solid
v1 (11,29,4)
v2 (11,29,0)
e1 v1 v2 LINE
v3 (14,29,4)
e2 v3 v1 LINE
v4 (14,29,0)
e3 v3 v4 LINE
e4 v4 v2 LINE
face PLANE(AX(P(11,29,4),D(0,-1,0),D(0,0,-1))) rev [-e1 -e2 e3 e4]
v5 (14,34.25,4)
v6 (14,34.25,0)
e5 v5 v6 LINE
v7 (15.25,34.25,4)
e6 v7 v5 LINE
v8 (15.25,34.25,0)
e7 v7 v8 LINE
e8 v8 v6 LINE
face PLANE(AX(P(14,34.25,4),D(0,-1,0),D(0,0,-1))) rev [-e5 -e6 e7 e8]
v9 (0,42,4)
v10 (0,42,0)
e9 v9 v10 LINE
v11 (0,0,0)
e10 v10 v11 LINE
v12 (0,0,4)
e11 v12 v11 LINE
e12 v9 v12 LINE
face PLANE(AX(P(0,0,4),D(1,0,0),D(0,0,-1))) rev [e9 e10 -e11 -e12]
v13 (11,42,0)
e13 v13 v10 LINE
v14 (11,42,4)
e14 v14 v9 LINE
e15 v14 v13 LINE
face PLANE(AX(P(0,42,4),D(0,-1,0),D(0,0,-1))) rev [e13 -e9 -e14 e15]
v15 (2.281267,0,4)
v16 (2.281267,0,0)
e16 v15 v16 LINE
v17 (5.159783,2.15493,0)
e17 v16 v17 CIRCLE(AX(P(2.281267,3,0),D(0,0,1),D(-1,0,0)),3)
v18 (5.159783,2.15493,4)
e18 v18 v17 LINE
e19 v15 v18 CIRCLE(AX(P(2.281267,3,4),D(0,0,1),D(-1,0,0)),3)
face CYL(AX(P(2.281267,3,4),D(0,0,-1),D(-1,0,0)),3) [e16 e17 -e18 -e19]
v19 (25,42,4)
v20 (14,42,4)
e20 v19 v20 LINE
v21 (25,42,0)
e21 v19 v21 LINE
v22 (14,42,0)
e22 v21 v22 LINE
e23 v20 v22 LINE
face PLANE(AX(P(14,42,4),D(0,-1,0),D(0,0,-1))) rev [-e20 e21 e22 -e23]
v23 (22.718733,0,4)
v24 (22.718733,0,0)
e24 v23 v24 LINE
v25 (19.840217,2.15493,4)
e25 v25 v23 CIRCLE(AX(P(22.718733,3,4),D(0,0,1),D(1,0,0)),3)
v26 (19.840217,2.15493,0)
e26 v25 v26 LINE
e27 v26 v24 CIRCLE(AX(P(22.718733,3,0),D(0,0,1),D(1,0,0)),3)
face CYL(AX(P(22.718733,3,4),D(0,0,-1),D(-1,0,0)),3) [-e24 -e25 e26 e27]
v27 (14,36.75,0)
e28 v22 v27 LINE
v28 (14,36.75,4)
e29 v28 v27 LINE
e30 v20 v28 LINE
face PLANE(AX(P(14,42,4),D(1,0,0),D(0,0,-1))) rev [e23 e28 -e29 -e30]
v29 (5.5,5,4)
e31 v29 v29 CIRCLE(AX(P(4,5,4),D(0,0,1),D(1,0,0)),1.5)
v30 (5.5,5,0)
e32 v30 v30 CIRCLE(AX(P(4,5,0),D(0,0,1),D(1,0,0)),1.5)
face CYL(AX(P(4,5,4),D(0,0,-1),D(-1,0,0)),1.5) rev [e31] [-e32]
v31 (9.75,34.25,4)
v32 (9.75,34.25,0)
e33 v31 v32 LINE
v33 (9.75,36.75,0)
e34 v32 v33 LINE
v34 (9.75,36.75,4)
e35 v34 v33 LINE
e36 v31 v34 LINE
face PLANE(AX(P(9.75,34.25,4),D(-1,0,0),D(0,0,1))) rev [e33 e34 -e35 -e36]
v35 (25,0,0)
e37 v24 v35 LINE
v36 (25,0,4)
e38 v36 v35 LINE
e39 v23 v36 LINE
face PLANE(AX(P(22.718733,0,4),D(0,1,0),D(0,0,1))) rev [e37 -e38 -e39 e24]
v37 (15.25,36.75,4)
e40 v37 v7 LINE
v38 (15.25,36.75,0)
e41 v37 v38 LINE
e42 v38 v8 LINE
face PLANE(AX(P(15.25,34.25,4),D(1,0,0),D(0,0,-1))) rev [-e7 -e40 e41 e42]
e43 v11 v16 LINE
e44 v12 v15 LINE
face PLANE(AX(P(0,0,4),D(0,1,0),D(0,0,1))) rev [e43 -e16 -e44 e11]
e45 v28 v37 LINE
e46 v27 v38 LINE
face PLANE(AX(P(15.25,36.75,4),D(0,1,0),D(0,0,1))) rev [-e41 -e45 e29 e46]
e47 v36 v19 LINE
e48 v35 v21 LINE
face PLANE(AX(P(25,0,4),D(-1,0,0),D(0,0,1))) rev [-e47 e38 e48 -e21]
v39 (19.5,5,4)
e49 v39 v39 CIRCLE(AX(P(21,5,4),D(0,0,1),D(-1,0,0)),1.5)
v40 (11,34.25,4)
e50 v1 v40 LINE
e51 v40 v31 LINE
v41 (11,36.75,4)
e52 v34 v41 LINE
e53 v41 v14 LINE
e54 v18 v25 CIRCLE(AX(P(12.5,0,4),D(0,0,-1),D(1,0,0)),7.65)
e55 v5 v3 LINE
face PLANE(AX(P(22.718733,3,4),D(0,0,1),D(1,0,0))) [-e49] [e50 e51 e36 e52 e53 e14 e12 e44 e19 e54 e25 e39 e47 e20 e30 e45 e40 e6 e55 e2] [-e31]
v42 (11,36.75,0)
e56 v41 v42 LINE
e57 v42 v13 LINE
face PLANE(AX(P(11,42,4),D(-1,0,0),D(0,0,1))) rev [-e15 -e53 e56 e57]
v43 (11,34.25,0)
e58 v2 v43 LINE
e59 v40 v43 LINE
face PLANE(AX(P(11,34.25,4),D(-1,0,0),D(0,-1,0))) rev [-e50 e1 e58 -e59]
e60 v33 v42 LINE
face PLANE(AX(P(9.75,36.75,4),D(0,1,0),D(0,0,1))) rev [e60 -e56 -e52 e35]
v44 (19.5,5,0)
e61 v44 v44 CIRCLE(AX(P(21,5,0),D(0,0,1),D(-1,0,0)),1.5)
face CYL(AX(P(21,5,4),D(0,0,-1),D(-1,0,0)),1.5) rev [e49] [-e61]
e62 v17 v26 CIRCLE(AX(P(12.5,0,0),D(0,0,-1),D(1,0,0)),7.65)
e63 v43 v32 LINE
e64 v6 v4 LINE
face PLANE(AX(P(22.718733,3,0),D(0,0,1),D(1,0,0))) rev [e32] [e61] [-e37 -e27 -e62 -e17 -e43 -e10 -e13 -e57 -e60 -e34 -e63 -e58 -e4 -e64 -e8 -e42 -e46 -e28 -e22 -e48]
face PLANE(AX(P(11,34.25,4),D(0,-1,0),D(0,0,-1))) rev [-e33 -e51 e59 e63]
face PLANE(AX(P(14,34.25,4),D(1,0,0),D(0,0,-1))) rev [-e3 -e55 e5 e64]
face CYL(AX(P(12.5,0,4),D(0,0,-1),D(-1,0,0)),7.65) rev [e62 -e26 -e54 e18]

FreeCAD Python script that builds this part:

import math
import FreeCAD as App
import Part
import Sketcher

V = App.Vector
Q = App.Units.Quantity

doc = App.newDocument("Part")
params = doc.addObject("Spreadsheet::Sheet", "Params")
for row, (alias, value) in enumerate([
    ("sketch1_diameter", "3 mm"),
    ("sketch1_radius", "3 mm"),
    ("sketch1_width", "11 mm"),
    ("sketch1_width2", "3 mm"),
    ("sketch1_height", "42 mm"),
    ("pad1_length", "4 mm"),
], start=1):
    params.set(f"A{row}", alias)
    params.set(f"B{row}", "=" + value)
    params.setAlias(f"B{row}", alias)

body = doc.addObject("PartDesign::Body", "Body")

sketch1 = doc.addObject("Sketcher::SketchObject", "Sketch")
body.addObject(sketch1)
sketch1.AttachmentSupport = (doc.XY_Plane, [""])
sketch1.MapMode = "FlatFace"
sketch1.addGeometry([
    Part.LineSegment(V(11, 36.75, 0), V(11, 42, 0)),
    Part.LineSegment(V(11, 42, 0), V(0, 42, 0)),
    Part.LineSegment(V(0, 42, 0), V(0, 0, 0)),
    Part.LineSegment(V(0, 0, 0), V(2.281267, 0, 0)),
    Part.ArcOfCircle(Part.Circle(V(2.281267, 3, 0), V(0, 0, 1), 3), math.radians(-90), math.radians(-16.361104)),
    Part.ArcOfCircle(Part.Circle(V(12.5, 0, 0), V(0, 0, 1), 7.65), math.radians(16.361104), math.radians(163.638896)),
    Part.ArcOfCircle(Part.Circle(V(22.718733, 3, 0), V(0, 0, 1), 3), math.radians(-163.638896), math.radians(-90)),
    Part.LineSegment(V(22.718733, 0, 0), V(25, 0, 0)),
    Part.LineSegment(V(25, 0, 0), V(25, 42, 0)),
    Part.LineSegment(V(25, 42, 0), V(14, 42, 0)),
    Part.LineSegment(V(14, 42, 0), V(14, 36.75, 0)),
    Part.LineSegment(V(14, 36.75, 0), V(15.25, 36.75, 0)),
    Part.LineSegment(V(15.25, 36.75, 0), V(15.25, 34.25, 0)),
    Part.LineSegment(V(15.25, 34.25, 0), V(14, 34.25, 0)),
    Part.LineSegment(V(14, 34.25, 0), V(14, 29, 0)),
    Part.LineSegment(V(14, 29, 0), V(11, 29, 0)),
    Part.LineSegment(V(11, 29, 0), V(11, 34.25, 0)),
    Part.LineSegment(V(11, 34.25, 0), V(9.75, 34.25, 0)),
    Part.LineSegment(V(9.75, 34.25, 0), V(9.75, 36.75, 0)),
    Part.LineSegment(V(9.75, 36.75, 0), V(11, 36.75, 0)),
    Part.Circle(V(21, 5, 0), V(0, 0, 1), 1.5),
    Part.Circle(V(4, 5, 0), V(0, 0, 1), 1.5),
], False)
sketch1.addConstraint([
    Sketcher.Constraint("Coincident", 0, 2, 1, 1),
    Sketcher.Constraint("Coincident", 1, 2, 2, 1),
    Sketcher.Constraint("Coincident", 2, 2, 3, 1),
    Sketcher.Constraint("Tangent", 3, 2, 4, 1),
    Sketcher.Constraint("Tangent", 4, 2, 5, 2),
    Sketcher.Constraint("Tangent", 5, 1, 6, 1),
    Sketcher.Constraint("Tangent", 6, 2, 7, 1),
    Sketcher.Constraint("Coincident", 7, 2, 8, 1),
    Sketcher.Constraint("Coincident", 8, 2, 9, 1),
    Sketcher.Constraint("Coincident", 9, 2, 10, 1),
    Sketcher.Constraint("Coincident", 10, 2, 11, 1),
    Sketcher.Constraint("Coincident", 11, 2, 12, 1),
    Sketcher.Constraint("Coincident", 12, 2, 13, 1),
    Sketcher.Constraint("Coincident", 13, 2, 14, 1),
    Sketcher.Constraint("Coincident", 14, 2, 15, 1),
    Sketcher.Constraint("Coincident", 15, 2, 16, 1),
    Sketcher.Constraint("Coincident", 16, 2, 17, 1),
    Sketcher.Constraint("Coincident", 17, 2, 18, 1),
    Sketcher.Constraint("Coincident", 18, 2, 19, 1),
    Sketcher.Constraint("Coincident", 19, 2, 0, 1),
    Sketcher.Constraint("Vertical", 0),
    Sketcher.Constraint("Horizontal", 1),
    Sketcher.Constraint("Vertical", 2),
    Sketcher.Constraint("Horizontal", 3),
    Sketcher.Constraint("Horizontal", 7),
    Sketcher.Constraint("Vertical", 8),
    Sketcher.Constraint("Horizontal", 9),
    Sketcher.Constraint("Vertical", 10),
    Sketcher.Constraint("Horizontal", 11),
    Sketcher.Constraint("Vertical", 12),
    Sketcher.Constraint("Horizontal", 13),
    Sketcher.Constraint("Vertical", 14),
    Sketcher.Constraint("Horizontal", 15),
    Sketcher.Constraint("Vertical", 16),
    Sketcher.Constraint("Horizontal", 17),
    Sketcher.Constraint("Vertical", 18),
    Sketcher.Constraint("Horizontal", 19),
    Sketcher.Constraint("Coincident", 2, 2, -1, 1),
    Sketcher.Constraint("Equal", 4, 6),
    Sketcher.Constraint("Equal", 20, 21),
    Sketcher.Constraint("PointOnObject", 5, 3, -1),
    Sketcher.Constraint("PointOnObject", 6, 2, -1),
    Sketcher.Constraint("Horizontal", 20, 3, 21, 3),
    Sketcher.Constraint("Horizontal", 1, 2, 8, 2),
    Sketcher.Constraint("Horizontal", 13, 2, 16, 2),
    Sketcher.Constraint("Horizontal", 11, 2, 18, 2),
    Sketcher.Constraint("Vertical", 10, 2, 13, 2),
    Sketcher.Constraint("Vertical", 0, 2, 15, 2),
    Sketcher.Constraint("Equal", 3, 7),
    Sketcher.Constraint("Equal", 1, 9),
    Sketcher.Constraint("Equal", 13, 17),
    Sketcher.Constraint("Equal", 10, 14),
    Sketcher.Constraint("Diameter", 20, Q("3 mm")),
    Sketcher.Constraint("Radius", 4, Q("3 mm")),
    Sketcher.Constraint("DistanceX", 1, 2, 1, 1, Q("11 mm")),
    Sketcher.Constraint("DistanceX", 15, 2, 15, 1, Q("3 mm")),
    Sketcher.Constraint("DistanceY", 2, 2, 2, 1, Q("42 mm")),
    Sketcher.Constraint("Radius", 5, Q("7.65 mm")),
    Sketcher.Constraint("DistanceY", 12, 2, 12, 1, Q("2.5 mm")),
    Sketcher.Constraint("DistanceX", -1, 1, 20, 3, Q("21 mm")),
    Sketcher.Constraint("DistanceY", -1, 1, 20, 3, Q("5 mm")),
    Sketcher.Constraint("DistanceX", -1, 1, 21, 3, Q("4 mm")),
    Sketcher.Constraint("DistanceY", -1, 1, 14, 2, Q("29 mm")),
    Sketcher.Constraint("DistanceX", 11, 1, 11, 2, Q("1.25 mm")),
])
sketch1.setExpression("Constraints[52]", "Params.sketch1_diameter")
sketch1.setExpression("Constraints[53]", "Params.sketch1_radius")
sketch1.setExpression("Constraints[54]", "Params.sketch1_width")
sketch1.setExpression("Constraints[55]", "Params.sketch1_width2")
sketch1.setExpression("Constraints[56]", "Params.sketch1_height")
pad1 = doc.addObject("PartDesign::Pad", "Pad")
body.addObject(pad1)
pad1.Profile = sketch1
pad1.setExpression("Length", "Params.pad1_length")

doc.recompute()
